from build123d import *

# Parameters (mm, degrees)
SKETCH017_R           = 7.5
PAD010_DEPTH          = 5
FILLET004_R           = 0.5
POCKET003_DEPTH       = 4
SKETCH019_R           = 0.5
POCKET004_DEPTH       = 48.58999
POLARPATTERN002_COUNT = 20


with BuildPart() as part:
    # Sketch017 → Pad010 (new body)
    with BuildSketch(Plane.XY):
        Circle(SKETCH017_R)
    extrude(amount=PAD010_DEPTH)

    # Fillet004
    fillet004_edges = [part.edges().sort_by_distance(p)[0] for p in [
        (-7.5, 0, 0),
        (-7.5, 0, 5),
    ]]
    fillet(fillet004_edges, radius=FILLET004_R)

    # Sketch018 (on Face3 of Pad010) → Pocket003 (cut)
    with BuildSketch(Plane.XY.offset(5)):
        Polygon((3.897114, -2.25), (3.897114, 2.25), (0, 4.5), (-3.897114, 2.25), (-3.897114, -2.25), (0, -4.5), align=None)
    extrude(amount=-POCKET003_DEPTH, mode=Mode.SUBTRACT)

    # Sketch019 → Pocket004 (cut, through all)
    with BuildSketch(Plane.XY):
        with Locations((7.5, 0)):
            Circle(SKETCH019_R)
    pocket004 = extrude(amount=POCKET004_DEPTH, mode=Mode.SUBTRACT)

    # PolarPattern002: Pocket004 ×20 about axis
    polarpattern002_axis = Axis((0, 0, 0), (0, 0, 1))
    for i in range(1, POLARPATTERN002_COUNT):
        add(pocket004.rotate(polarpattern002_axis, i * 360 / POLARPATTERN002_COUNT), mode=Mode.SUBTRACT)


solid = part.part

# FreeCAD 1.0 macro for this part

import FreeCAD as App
import Part
import Sketcher

V = App.Vector
Q = App.Units.Quantity


def edges_at(feature, points):
    """Names of the edges that pass closest to the given points."""
    edges = feature.Shape.Edges
    near = lambda p: min(range(len(edges)), key=lambda i: edges[i].distToShape(Part.Vertex(*p))[0])
    return sorted({f"Edge{near(p) + 1}" for p in points})

doc = App.newDocument("Part")
body = doc.addObject("PartDesign::Body", "Body")

sketch1 = body.newObject("Sketcher::SketchObject", "Sketch")
sketch1.AttachmentSupport = (doc.getObject("XY_Plane"), [""])
sketch1.MapMode = "FlatFace"
sketch1.addGeometry(Part.Circle(V(0, 0, 0), V(0, 0, 1), 8), False)
sketch1.addConstraint(Sketcher.Constraint("Coincident", 0, 3, -1, 1))
sketch1.addConstraint(Sketcher.Constraint("Diameter", 0, 15.0))
pad1 = body.newObject("PartDesign::Pad", "Pad")
pad1.Profile = sketch1
pad1.Length = 5
doc.recompute()

fillet = body.newObject("PartDesign::Fillet", "Fillet")
fillet.Base = (pad1, edges_at(pad1, [(-7.5, 0, 0), (-7.5, 0, 5)]))
fillet.Radius = 0.5

sketch2 = body.newObject("Sketcher::SketchObject", "Sketch001")
sketch2.AttachmentSupport = (doc.getObject("XY_Plane"), [""])
sketch2.MapMode = "FlatFace"
sketch2.AttachmentOffset = App.Placement(V(0, 0, 5), App.Rotation())
sketch2.addGeometry(Part.LineSegment(V(3.9, -2.2, 0), V(3.9, 2.2, 0)), False)
sketch2.addGeometry(Part.LineSegment(V(3.9, 2.2, 0), V(0, 4.5, 0)), False)
sketch2.addGeometry(Part.LineSegment(V(0, 4.5, 0), V(-3.9, 2.2, 0)), False)
sketch2.addGeometry(Part.LineSegment(V(-3.9, 2.2, 0), V(-3.9, -2.2, 0)), False)
sketch2.addGeometry(Part.LineSegment(V(-3.9, -2.2, 0), V(0, -4.5, 0)), False)
sketch2.addGeometry(Part.LineSegment(V(0, -4.5, 0), V(3.9, -2.2, 0)), False)
sketch2.addConstraint(Sketcher.Constraint("Coincident", 0, 2, 1, 1))
sketch2.addConstraint(Sketcher.Constraint("Coincident", 1, 2, 2, 1))
sketch2.addConstraint(Sketcher.Constraint("Coincident", 2, 2, 3, 1))
sketch2.addConstraint(Sketcher.Constraint("Coincident", 3, 2, 4, 1))
sketch2.addConstraint(Sketcher.Constraint("Coincident", 4, 2, 5, 1))
sketch2.addConstraint(Sketcher.Constraint("Coincident", 5, 2, 0, 1))
sketch2.addConstraint(Sketcher.Constraint("Vertical", 0))
sketch2.addConstraint(Sketcher.Constraint("Vertical", 3))
sketch2.addConstraint(Sketcher.Constraint("Symmetric", 0, 2, 3, 2, -1, 1))
sketch2.addConstraint(Sketcher.Constraint("Symmetric", 1, 2, 4, 2, -1, 1))
sketch2.addConstraint(Sketcher.Constraint("PointOnObject", 1, 2, -2))
sketch2.addConstraint(Sketcher.Constraint("Parallel", 2, 5))
sketch2.addConstraint(Sketcher.Constraint("Horizontal", 0, 2, 2, 2))
sketch2.addConstraint(Sketcher.Constraint("Angle", 1, Q("149.999998 deg")))
sketch2.addConstraint(Sketcher.Constraint("DistanceY", 0, 1, 0, 2, 4.5))
sketch2.addConstraint(Sketcher.Constraint("DistanceY", 4, 2, 1, 2, 9.0))
pocket1 = body.newObject("PartDesign::Pocket", "Pocket")
pocket1.Profile = sketch2
pocket1.Length = 4

sketch3 = body.newObject("Sketcher::SketchObject", "Sketch002")
sketch3.AttachmentSupport = (doc.getObject("XY_Plane"), [""])
sketch3.MapMode = "FlatFace"
sketch3.addGeometry(Part.Circle(V(7.5, 0, 0), V(0, 0, 1), 0.5), False)
sketch3.addConstraint(Sketcher.Constraint("PointOnObject", 0, 3, -1))
sketch3.addConstraint(Sketcher.Constraint("Diameter", 0, 1.0))
sketch3.addConstraint(Sketcher.Constraint("DistanceX", -1, 1, 0, 3, 7.5))
pocket2 = body.newObject("PartDesign::Pocket", "Pocket001")
pocket2.Profile = sketch3
pocket2.Type = "ThroughAll"
pocket2.Reversed = True
doc.recompute()

polarpattern = body.newObject("PartDesign::PolarPattern", "PolarPattern")
polarpattern.Originals = [pocket2]
polarpattern.Axis = (doc.getObject("Z_Axis"), [""])
polarpattern.Angle = 360
polarpattern.Occurrences = 20
body.Tip = polarpattern

doc.recompute()
